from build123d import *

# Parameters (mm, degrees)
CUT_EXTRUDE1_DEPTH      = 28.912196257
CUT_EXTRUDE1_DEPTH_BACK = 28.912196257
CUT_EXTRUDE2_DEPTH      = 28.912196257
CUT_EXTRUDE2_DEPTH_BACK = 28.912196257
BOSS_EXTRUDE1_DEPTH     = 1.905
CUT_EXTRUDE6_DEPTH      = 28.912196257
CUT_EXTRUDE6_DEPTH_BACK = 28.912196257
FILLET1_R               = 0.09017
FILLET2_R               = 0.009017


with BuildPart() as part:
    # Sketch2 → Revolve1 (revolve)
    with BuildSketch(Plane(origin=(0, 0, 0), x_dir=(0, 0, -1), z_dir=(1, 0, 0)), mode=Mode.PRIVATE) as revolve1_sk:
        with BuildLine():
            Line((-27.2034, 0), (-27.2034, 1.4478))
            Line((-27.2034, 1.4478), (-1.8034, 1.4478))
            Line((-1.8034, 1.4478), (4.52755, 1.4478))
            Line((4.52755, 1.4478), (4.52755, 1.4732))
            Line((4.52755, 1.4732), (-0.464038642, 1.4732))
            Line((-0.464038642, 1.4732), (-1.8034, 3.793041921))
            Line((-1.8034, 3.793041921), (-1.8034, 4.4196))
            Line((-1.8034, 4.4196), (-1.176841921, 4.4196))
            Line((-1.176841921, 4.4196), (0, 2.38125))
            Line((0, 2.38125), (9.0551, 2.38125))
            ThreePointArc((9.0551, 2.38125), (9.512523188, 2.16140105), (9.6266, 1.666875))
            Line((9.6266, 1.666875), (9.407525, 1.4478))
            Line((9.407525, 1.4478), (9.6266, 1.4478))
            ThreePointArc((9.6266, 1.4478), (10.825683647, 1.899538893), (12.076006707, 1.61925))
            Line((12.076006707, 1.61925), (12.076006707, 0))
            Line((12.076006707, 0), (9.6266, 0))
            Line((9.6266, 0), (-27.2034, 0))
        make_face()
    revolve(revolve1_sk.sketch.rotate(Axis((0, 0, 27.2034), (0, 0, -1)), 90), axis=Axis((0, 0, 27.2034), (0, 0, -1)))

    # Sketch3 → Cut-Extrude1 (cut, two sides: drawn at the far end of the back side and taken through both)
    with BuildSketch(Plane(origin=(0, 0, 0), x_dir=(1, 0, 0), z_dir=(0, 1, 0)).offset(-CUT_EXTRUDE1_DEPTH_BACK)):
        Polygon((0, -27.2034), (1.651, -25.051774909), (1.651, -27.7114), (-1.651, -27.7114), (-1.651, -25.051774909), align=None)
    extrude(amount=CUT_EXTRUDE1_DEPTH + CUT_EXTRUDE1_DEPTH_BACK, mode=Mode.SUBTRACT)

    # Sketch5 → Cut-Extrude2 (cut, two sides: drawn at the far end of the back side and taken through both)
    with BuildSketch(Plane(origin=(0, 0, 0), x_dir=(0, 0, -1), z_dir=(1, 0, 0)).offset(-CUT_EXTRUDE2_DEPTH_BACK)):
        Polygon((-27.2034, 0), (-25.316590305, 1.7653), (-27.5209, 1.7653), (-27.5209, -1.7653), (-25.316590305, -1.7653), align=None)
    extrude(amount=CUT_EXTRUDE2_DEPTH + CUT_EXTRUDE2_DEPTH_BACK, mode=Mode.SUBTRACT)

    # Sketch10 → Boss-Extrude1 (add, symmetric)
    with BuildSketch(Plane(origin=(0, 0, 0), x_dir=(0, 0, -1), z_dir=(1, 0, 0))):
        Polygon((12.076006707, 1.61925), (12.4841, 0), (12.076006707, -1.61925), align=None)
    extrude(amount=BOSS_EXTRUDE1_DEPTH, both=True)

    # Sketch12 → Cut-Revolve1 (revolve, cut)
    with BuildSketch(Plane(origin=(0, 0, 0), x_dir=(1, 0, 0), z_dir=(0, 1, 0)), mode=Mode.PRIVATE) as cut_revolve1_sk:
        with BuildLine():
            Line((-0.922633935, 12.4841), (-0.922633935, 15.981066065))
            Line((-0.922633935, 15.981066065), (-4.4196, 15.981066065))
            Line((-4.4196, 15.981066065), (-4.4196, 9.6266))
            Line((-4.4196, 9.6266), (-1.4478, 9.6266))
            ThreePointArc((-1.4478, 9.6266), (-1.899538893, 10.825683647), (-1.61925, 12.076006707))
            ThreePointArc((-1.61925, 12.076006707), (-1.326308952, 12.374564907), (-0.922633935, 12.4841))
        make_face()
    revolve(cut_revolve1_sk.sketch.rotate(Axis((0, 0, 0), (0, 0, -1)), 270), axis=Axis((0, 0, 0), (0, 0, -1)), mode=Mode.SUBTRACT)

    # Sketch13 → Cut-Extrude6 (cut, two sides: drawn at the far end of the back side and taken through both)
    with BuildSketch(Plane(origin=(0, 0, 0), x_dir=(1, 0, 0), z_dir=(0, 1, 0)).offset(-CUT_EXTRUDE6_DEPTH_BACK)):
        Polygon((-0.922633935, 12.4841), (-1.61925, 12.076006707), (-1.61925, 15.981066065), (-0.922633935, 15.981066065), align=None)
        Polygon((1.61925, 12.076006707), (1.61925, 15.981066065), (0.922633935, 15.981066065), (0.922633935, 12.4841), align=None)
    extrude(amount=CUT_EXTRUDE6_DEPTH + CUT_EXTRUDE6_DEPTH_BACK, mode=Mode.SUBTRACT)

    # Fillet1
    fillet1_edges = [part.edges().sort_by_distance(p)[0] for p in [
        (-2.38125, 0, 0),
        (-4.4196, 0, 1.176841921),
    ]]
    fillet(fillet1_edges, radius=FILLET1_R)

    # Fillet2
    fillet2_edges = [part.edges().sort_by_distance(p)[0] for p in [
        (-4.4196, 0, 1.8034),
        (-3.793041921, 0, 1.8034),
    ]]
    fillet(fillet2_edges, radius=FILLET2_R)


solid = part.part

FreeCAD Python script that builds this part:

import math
import FreeCAD as App
import Part
import Sketcher

V = App.Vector
Q = App.Units.Quantity


def edges_at(feature, points):
    """Names of the edges that pass closest to the given points."""
    edges = feature.Shape.Edges
    near = lambda p: min(range(len(edges)), key=lambda i: edges[i].distToShape(Part.Vertex(*p))[0])
    return sorted({f"Edge{near(p) + 1}" for p in points})


def add_polygon(sketch, points):
    """Adds a closed chain of lines whose ends are joined by coincident constraints."""
    first, n = sketch.GeometryCount, len(points)
    for a, b in zip(points, points[1:] + points[:1]):
        sketch.addGeometry(Part.LineSegment(App.Vector(*a, 0), App.Vector(*b, 0)), False)
    for i in range(n):
        sketch.addConstraint(Sketcher.Constraint("Coincident", first + i, 2, first + (i + 1) % n, 1))

doc = App.newDocument("Part")
params = doc.addObject("Spreadsheet::Sheet", "Params")
for row, (alias, value) in enumerate([
    ("sketch1_width", "0.057 in"),
    ("sketch1_width2", "0.001 in"),
    ("revolution_angle", "360 deg"),
    ("sketch2_width", "0.13 in"),
    ("sketch3_width", "0.139 in"),
    ("pad1_length", "0.15 in"),
    ("sketch5_width", "0.117 in"),
    ("groove_angle", "360 deg"),
    ("fillet_radius", "0.09017 mm"),
    ("fillet2_radius", "0.009017 mm"),
], start=1):
    params.set(f"A{row}", alias)
    params.set(f"B{row}", "=" + value)
    params.setAlias(f"B{row}", alias)

body = doc.addObject("PartDesign::Body", "Body")

sketch1 = body.newObject("Sketcher::SketchObject", "Sketch")
sketch1.AttachmentSupport = (doc.getObject("YZ_Plane"), [""])
sketch1.MapMode = "FlatFace"
sketch1.addGeometry(Part.LineSegment(V(1.448, 27.203, 0), V(0, 27.203, 0)), False)
sketch1.addGeometry(Part.LineSegment(V(0, 27.203, 0), V(0, -12.076, 0)), False)
sketch1.addGeometry(Part.LineSegment(V(0, -12.076, 0), V(1.619, -12.076, 0)), False)
sketch1.addGeometry(Part.ArcOfCircle(Part.Circle(V(-0.332, -10.982, 0), V(0, 0, 1), 2.237), math.radians(-29), math.radians(37)), False)
sketch1.addGeometry(Part.LineSegment(V(1.448, -9.627, 0), V(1.448, -9.408, 0)), False)
sketch1.addGeometry(Part.LineSegment(V(1.448, -9.408, 0), V(1.667, -9.627, 0)), False)
sketch1.addGeometry(Part.ArcOfCircle(Part.Circle(V(1.795, -9.055, 0), V(0, 0, 1), 0.586), math.radians(-103), math.radians(0)), False)
sketch1.addGeometry(Part.LineSegment(V(2.381, -9.055, 0), V(2.381, 0, 0)), False)
sketch1.addGeometry(Part.LineSegment(V(2.381, 0, 0), V(4.42, 1.177, 0)), False)
sketch1.addGeometry(Part.LineSegment(V(4.42, 1.177, 0), V(4.42, 1.803, 0)), False)
sketch1.addGeometry(Part.LineSegment(V(4.42, 1.803, 0), V(3.793, 1.803, 0)), False)
sketch1.addGeometry(Part.LineSegment(V(3.793, 1.803, 0), V(1.473, 0.464, 0)), False)
sketch1.addGeometry(Part.LineSegment(V(1.473, 0.464, 0), V(1.473, -4.528, 0)), False)
sketch1.addGeometry(Part.LineSegment(V(1.473, -4.528, 0), V(1.448, -4.528, 0)), False)
sketch1.addGeometry(Part.LineSegment(V(1.448, -4.528, 0), V(1.448, 27.203, 0)), False)
sketch1.addConstraint(Sketcher.Constraint("Coincident", 0, 2, 1, 1))
sketch1.addConstraint(Sketcher.Constraint("Coincident", 1, 2, 2, 1))
sketch1.addConstraint(Sketcher.Constraint("Coincident", 2, 2, 3, 1))
sketch1.addConstraint(Sketcher.Constraint("Coincident", 3, 2, 4, 1))
sketch1.addConstraint(Sketcher.Constraint("Coincident", 4, 2, 5, 1))
sketch1.addConstraint(Sketcher.Constraint("Coincident", 5, 2, 6, 1))
sketch1.addConstraint(Sketcher.Constraint("Tangent", 6, 2, 7, 1))
sketch1.addConstraint(Sketcher.Constraint("Coincident", 7, 2, 8, 1))
sketch1.addConstraint(Sketcher.Constraint("Coincident", 8, 2, 9, 1))
sketch1.addConstraint(Sketcher.Constraint("Coincident", 9, 2, 10, 1))
sketch1.addConstraint(Sketcher.Constraint("Coincident", 10, 2, 11, 1))
sketch1.addConstraint(Sketcher.Constraint("Coincident", 11, 2, 12, 1))
sketch1.addConstraint(Sketcher.Constraint("Coincident", 12, 2, 13, 1))
sketch1.addConstraint(Sketcher.Constraint("Coincident", 13, 2, 14, 1))
sketch1.addConstraint(Sketcher.Constraint("Coincident", 14, 2, 0, 1))
sketch1.addConstraint(Sketcher.Constraint("Horizontal", 0))
sketch1.addConstraint(Sketcher.Constraint("Vertical", 1))
sketch1.addConstraint(Sketcher.Constraint("Horizontal", 2))
sketch1.addConstraint(Sketcher.Constraint("Vertical", 4))
sketch1.addConstraint(Sketcher.Constraint("Vertical", 7))
sketch1.addConstraint(Sketcher.Constraint("Vertical", 9))
sketch1.addConstraint(Sketcher.Constraint("Horizontal", 10))
sketch1.addConstraint(Sketcher.Constraint("Vertical", 12))
sketch1.addConstraint(Sketcher.Constraint("Horizontal", 13))
sketch1.addConstraint(Sketcher.Constraint("Vertical", 14))
sketch1.addConstraint(Sketcher.Constraint("PointOnObject", 0, 2, -2))
sketch1.addConstraint(Sketcher.Constraint("PointOnObject", 7, 2, -1))
sketch1.addConstraint(Sketcher.Constraint("Parallel", 8, 11))
sketch1.addConstraint(Sketcher.Constraint("Horizontal", 3, 2, 5, 2))
sketch1.addConstraint(Sketcher.Constraint("Vertical", 4, 2, 13, 2))
sketch1.addConstraint(Sketcher.Constraint("Equal", 10, 9))
sketch1.addConstraint(Sketcher.Constraint("Angle", 5, Q("-45 deg")))
sketch1.addConstraint(Sketcher.Constraint("Angle", 8, Q("30 deg")))
sketch1.addConstraint(Sketcher.Constraint("DistanceY", 10, 2, 14, 2, Q("1 in")))
sketch1.addConstraint(Sketcher.Constraint("DistanceX", 0, 2, 0, 1, Q("0.057 in")))
sketch1.addConstraint(Sketcher.Constraint("DistanceX", 13, 2, 13, 1, Q("0.001 in")))
sketch1.addConstraint(Sketcher.Constraint("DistanceY", 3, 2, 0, 2, Q("1.45 in")))
sketch1.addConstraint(Sketcher.Constraint("DistanceX", 2, 2, 6, 2, Q("0.03 in")))
sketch1.addConstraint(Sketcher.Constraint("DistanceY", 7, 1, 7, 2, Q("0.3565 in")))
sketch1.addConstraint(Sketcher.Constraint("DistanceY", -1, 1, 0, 2, Q("1.071 in")))
sketch1.addConstraint(Sketcher.Constraint("DistanceX", -1, 1, 6, 2, Q("0.09375 in")))
sketch1.addConstraint(Sketcher.Constraint("DistanceX", -1, 1, 8, 2, Q("0.174 in")))
sketch1.addConstraint(Sketcher.Constraint("Radius", 3, Q("2.237432 mm")))
sketch1.addConstraint(Sketcher.Constraint("Radius", 6, Q("0.585788 mm")))
sketch1.addConstraint(Sketcher.Constraint("DistanceY", 12, 2, 12, 1, Q("4.991589 mm")))
sketch1.addConstraint(Sketcher.Constraint("DistanceY", 1, 2, 1, 1, Q("39.279407 mm")))
sketch1.setExpression("Constraints[34]", "Params.sketch1_width")
sketch1.setExpression("Constraints[35]", "Params.sketch1_width2")
revolution = body.newObject("PartDesign::Revolution", "Revolution")
revolution.Profile = sketch1
revolution.ReferenceAxis = (sketch1, ["V_Axis"])
revolution.setExpression("Angle", "Params.revolution_angle")

sketch2 = body.newObject("Sketcher::SketchObject", "Sketch001")
sketch2.AttachmentSupport = (doc.getObject("XZ_Plane"), [""])
sketch2.MapMode = "FlatFace"
add_polygon(sketch2, [(1.7, 25.1), (0, 27.2), (-1.7, 25.1), (-1.7, 27.7), (1.7, 27.7)])
sketch2.addConstraint(Sketcher.Constraint("Vertical", 2))
sketch2.addConstraint(Sketcher.Constraint("Horizontal", 3))
sketch2.addConstraint(Sketcher.Constraint("Vertical", 4))
sketch2.addConstraint(Sketcher.Constraint("Symmetric", 1, 2, 4, 2, -2))
sketch2.addConstraint(Sketcher.Constraint("PointOnObject", 0, 2, -2))
sketch2.addConstraint(Sketcher.Constraint("DistanceX", 3, 1, 3, 2, Q("0.13 in")))
sketch2.addConstraint(Sketcher.Constraint("Angle", 0, Q("127.5 deg")))
sketch2.addConstraint(Sketcher.Constraint("DistanceY", 0, 2, 2, 2, Q("0.02 in")))
sketch2.addConstraint(Sketcher.Constraint("DistanceY", -1, 1, 0, 2, Q("1.071 in")))
sketch2.setExpression("Constraints[10]", "Params.sketch2_width")
pocket1 = body.newObject("PartDesign::Pocket", "Pocket")
pocket1.Profile = sketch2
pocket1.Type = "ThroughAll"
pocket1.Midplane = True

sketch3 = body.newObject("Sketcher::SketchObject", "Sketch002")
sketch3.AttachmentSupport = (doc.getObject("YZ_Plane"), [""])
sketch3.MapMode = "FlatFace"
add_polygon(sketch3, [(0, 27.2), (1.8, 25.3), (1.8, 27.5), (-1.8, 27.5), (-1.8, 25.3)])
sketch3.addConstraint(Sketcher.Constraint("Vertical", 1))
sketch3.addConstraint(Sketcher.Constraint("Horizontal", 2))
sketch3.addConstraint(Sketcher.Constraint("Vertical", 3))
sketch3.addConstraint(Sketcher.Constraint("Symmetric", 0, 2, 3, 2, -2))
sketch3.addConstraint(Sketcher.Constraint("PointOnObject", 4, 2, -2))
sketch3.addConstraint(Sketcher.Constraint("DistanceX", 2, 2, 2, 1, Q("0.139 in")))
sketch3.addConstraint(Sketcher.Constraint("DistanceY", -1, 1, 4, 2, Q("1.071 in")))
sketch3.addConstraint(Sketcher.Constraint("DistanceY", -1, 1, 1, 2, Q("1.0835 in")))
sketch3.addConstraint(Sketcher.Constraint("DistanceY", 1, 1, 1, 2, Q("2.20431 mm")))
sketch3.setExpression("Constraints[10]", "Params.sketch3_width")
pocket2 = body.newObject("PartDesign::Pocket", "Pocket001")
pocket2.Profile = sketch3
pocket2.Type = "ThroughAll"
pocket2.Midplane = True

sketch4 = body.newObject("Sketcher::SketchObject", "Sketch003")
sketch4.AttachmentSupport = (doc.getObject("YZ_Plane"), [""])
sketch4.MapMode = "FlatFace"
add_polygon(sketch4, [(0, -12.5), (1.6, -12.1), (-1.6, -12.1)])
sketch4.addConstraint(Sketcher.Constraint("Horizontal", 1))
sketch4.addConstraint(Sketcher.Constraint("PointOnObject", 2, 2, -2))
sketch4.addConstraint(Sketcher.Constraint("Equal", 0, 2))
sketch4.addConstraint(Sketcher.Constraint("DistanceX", 1, 2, 1, 1, Q("0.1275 in")))
sketch4.addConstraint(Sketcher.Constraint("DistanceY", 2, 2, -1, 1, Q("0.4915 in")))
sketch4.addConstraint(Sketcher.Constraint("Distance", 0, Q("1.669883 mm")))
pad1 = body.newObject("PartDesign::Pad", "Pad")
pad1.Profile = sketch4
pad1.setExpression("Length", "Params.pad1_length")
pad1.Midplane = True

sketch5 = body.newObject("Sketcher::SketchObject", "Sketch004")
sketch5.AttachmentSupport = (doc.getObject("XZ_Plane"), [""])
sketch5.MapMode = "FlatFace"
sketch5.addGeometry(Part.LineSegment(V(-0.9, -12.5, 0), V(-0.9, -16, 0)), False)
sketch5.addGeometry(Part.LineSegment(V(-0.9, -16, 0), V(-4.4, -16, 0)), False)
sketch5.addGeometry(Part.LineSegment(V(-4.4, -16, 0), V(-4.4, -9.6, 0)), False)
sketch5.addGeometry(Part.LineSegment(V(-4.4, -9.6, 0), V(-1.4, -9.6, 0)), False)
sketch5.addGeometry(Part.ArcOfCircle(Part.Circle(V(0.3, -11, 0), V(0, 0, 1), 2.2), math.radians(143), math.radians(209)), False)
sketch5.addGeometry(Part.ArcOfCircle(Part.Circle(V(-0.9, -11.7, 0), V(0, 0, 1), 0.8), math.radians(-151), math.radians(-90)), False)
sketch5.addConstraint(Sketcher.Constraint("Coincident", 0, 2, 1, 1))
sketch5.addConstraint(Sketcher.Constraint("Coincident", 1, 2, 2, 1))
sketch5.addConstraint(Sketcher.Constraint("Coincident", 2, 2, 3, 1))
sketch5.addConstraint(Sketcher.Constraint("Coincident", 3, 2, 4, 1))
sketch5.addConstraint(Sketcher.Constraint("Tangent", 4, 2, 5, 1))
sketch5.addConstraint(Sketcher.Constraint("Coincident", 5, 2, 0, 1))
sketch5.addConstraint(Sketcher.Constraint("Vertical", 0))
sketch5.addConstraint(Sketcher.Constraint("Horizontal", 1))
sketch5.addConstraint(Sketcher.Constraint("Vertical", 2))
sketch5.addConstraint(Sketcher.Constraint("Horizontal", 3))
sketch5.addConstraint(Sketcher.Constraint("Vertical", 5, 3, 0, 2))
sketch5.addConstraint(Sketcher.Constraint("Equal", 1, 0))
sketch5.addConstraint(Sketcher.Constraint("DistanceX", 3, 1, 3, 2, Q("0.117 in")))
sketch5.addConstraint(Sketcher.Constraint("DistanceX", 1, 2, -1, 1, Q("0.174 in")))
sketch5.addConstraint(Sketcher.Constraint("DistanceY", 2, 2, -1, 1, Q("0.379 in")))
sketch5.addConstraint(Sketcher.Constraint("Radius", 4, Q("2.237432 mm")))
sketch5.addConstraint(Sketcher.Constraint("Radius", 5, Q("0.798609 mm")))
sketch5.addConstraint(Sketcher.Constraint("DistanceY", 5, 2, -1, 1, Q("0.4915 in")))
sketch5.addConstraint(Sketcher.Constraint("DistanceY", 5, 3, 4, 3, Q("0.0276999 in")))
sketch5.setExpression("Constraints[12]", "Params.sketch5_width")
groove = body.newObject("PartDesign::Groove", "Groove")
groove.Profile = sketch5
groove.ReferenceAxis = (sketch5, ["V_Axis"])
groove.setExpression("Angle", "Params.groove_angle")

sketch6 = body.newObject("Sketcher::SketchObject", "Sketch005")
sketch6.AttachmentSupport = (doc.getObject("XZ_Plane"), [""])
sketch6.MapMode = "FlatFace"
add_polygon(sketch6, [(-1.6, -12.1), (-0.9, -12.5), (-0.9, -16), (-1.6, -16)])
add_polygon(sketch6, [(1.6, -12.1), (1.6, -16), (0.9, -16), (0.9, -12.5)])
sketch6.addConstraint(Sketcher.Constraint("Vertical", 1))
sketch6.addConstraint(Sketcher.Constraint("Horizontal", 2))
sketch6.addConstraint(Sketcher.Constraint("Vertical", 3))
sketch6.addConstraint(Sketcher.Constraint("Vertical", 4))
sketch6.addConstraint(Sketcher.Constraint("Horizontal", 5))
sketch6.addConstraint(Sketcher.Constraint("Vertical", 6))
sketch6.addConstraint(Sketcher.Constraint("Symmetric", 2, 2, 4, 2, -2))
sketch6.addConstraint(Sketcher.Constraint("Symmetric", 0, 2, 6, 2, -2))
sketch6.addConstraint(Sketcher.Constraint("Horizontal", 3, 2, 7, 2))
sketch6.addConstraint(Sketcher.Constraint("DistanceY", 0, 2, -1, 1, Q("0.4915 in")))
sketch6.addConstraint(Sketcher.Constraint("DistanceX", 2, 2, 4, 2, Q("0.1275 in")))
sketch6.addConstraint(Sketcher.Constraint("DistanceY", 3, 1, 3, 2, Q("3.905059 mm")))
sketch6.addConstraint(Sketcher.Constraint("Distance", 0, Q("0.80735 mm")))
sketch6.addConstraint(Sketcher.Constraint("DistanceX", 2, 2, 2, 1, Q("0.696616 mm")))
pocket3 = body.newObject("PartDesign::Pocket", "Pocket002")
pocket3.Profile = sketch6
pocket3.Type = "ThroughAll"
pocket3.Midplane = True
doc.recompute()

fillet = body.newObject("PartDesign::Fillet", "Fillet")
fillet.Base = (pocket3, edges_at(pocket3, [(-2.381, 0, 0), (-4.42, 0, 1.177)]))
fillet.setExpression("Radius", "Params.fillet_radius")
doc.recompute()

fillet2 = body.newObject("PartDesign::Fillet", "Fillet001")
fillet2.Base = (fillet, edges_at(fillet, [(-4.42, 0, 1.803), (-3.793, 0, 1.803)]))
fillet2.setExpression("Radius", "Params.fillet2_radius")

doc.recompute()
